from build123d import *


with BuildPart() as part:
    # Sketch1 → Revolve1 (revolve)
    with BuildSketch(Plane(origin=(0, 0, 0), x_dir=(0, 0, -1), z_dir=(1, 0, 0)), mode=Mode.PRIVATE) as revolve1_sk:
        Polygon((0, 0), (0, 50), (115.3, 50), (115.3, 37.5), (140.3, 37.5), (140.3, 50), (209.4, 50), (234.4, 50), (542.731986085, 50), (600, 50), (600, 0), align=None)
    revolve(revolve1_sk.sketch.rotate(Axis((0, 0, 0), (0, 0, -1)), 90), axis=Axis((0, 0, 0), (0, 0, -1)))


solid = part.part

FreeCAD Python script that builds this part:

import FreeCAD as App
import Part
import Sketcher

doc = App.newDocument("Part")
body = doc.addObject("PartDesign::Body", "Body")

# Sketch on YZ plane
sketch1 = body.newObject("Sketcher::SketchObject", "Sketch")
sketch1.AttachmentSupport = (doc.getObject("YZ_Plane"), [""])
sketch1.MapMode = "FlatFace"
sketch1.addGeometry(Part.LineSegment(App.Vector(50, 0, 0), App.Vector(0, 0, 0)), False)
sketch1.addGeometry(Part.LineSegment(App.Vector(0, 0, 0), App.Vector(0, -600, 0)), False)
sketch1.addGeometry(Part.LineSegment(App.Vector(0, -600, 0), App.Vector(50, -600, 0)), False)
sketch1.addGeometry(Part.LineSegment(App.Vector(50, -600, 0), App.Vector(50, -140.3, 0)), False)
sketch1.addGeometry(Part.LineSegment(App.Vector(50, -140.3, 0), App.Vector(37.5, -140.3, 0)), False)
sketch1.addGeometry(Part.LineSegment(App.Vector(37.5, -140.3, 0), App.Vector(37.5, -115.3, 0)), False)
sketch1.addGeometry(Part.LineSegment(App.Vector(37.5, -115.3, 0), App.Vector(50, -115.3, 0)), False)
sketch1.addGeometry(Part.LineSegment(App.Vector(50, -115.3, 0), App.Vector(50, 0, 0)), False)
sketch1.addConstraint(Sketcher.Constraint("Coincident", 0, 2, 1, 1))
sketch1.addConstraint(Sketcher.Constraint("Coincident", 1, 2, 2, 1))
sketch1.addConstraint(Sketcher.Constraint("Coincident", 2, 2, 3, 1))
sketch1.addConstraint(Sketcher.Constraint("Coincident", 3, 2, 4, 1))
sketch1.addConstraint(Sketcher.Constraint("Coincident", 4, 2, 5, 1))
sketch1.addConstraint(Sketcher.Constraint("Coincident", 5, 2, 6, 1))
sketch1.addConstraint(Sketcher.Constraint("Coincident", 6, 2, 7, 1))
sketch1.addConstraint(Sketcher.Constraint("Coincident", 7, 2, 0, 1))
sketch1.addConstraint(Sketcher.Constraint("Horizontal", 0))
sketch1.addConstraint(Sketcher.Constraint("Vertical", 1))
sketch1.addConstraint(Sketcher.Constraint("Horizontal", 2))
sketch1.addConstraint(Sketcher.Constraint("Vertical", 3))
sketch1.addConstraint(Sketcher.Constraint("Horizontal", 4))
sketch1.addConstraint(Sketcher.Constraint("Vertical", 5))
sketch1.addConstraint(Sketcher.Constraint("Horizontal", 6))
sketch1.addConstraint(Sketcher.Constraint("Vertical", 7))
sketch1.addConstraint(Sketcher.Constraint("Coincident", 0, 2, -1, 1))
sketch1.addConstraint(Sketcher.Constraint("Vertical", 3, 2, 6, 2))
sketch1.addConstraint(Sketcher.Constraint("DistanceX", 0, 2, 0, 1, 50.0))
sketch1.addConstraint(Sketcher.Constraint("DistanceY", 1, 2, 1, 1, 600.0))
sketch1.addConstraint(Sketcher.Constraint("DistanceY", 5, 1, 5, 2, 25.0))
sketch1.addConstraint(Sketcher.Constraint("DistanceX", 4, 2, 4, 1, 12.5))
sketch1.addConstraint(Sketcher.Constraint("DistanceY", 3, 1, 3, 2, 459.7))
revolution = body.newObject("PartDesign::Revolution", "Revolution")
revolution.Profile = sketch1
revolution.ReferenceAxis = (sketch1, ["V_Axis"])
revolution.Angle = 360

doc.recompute()
